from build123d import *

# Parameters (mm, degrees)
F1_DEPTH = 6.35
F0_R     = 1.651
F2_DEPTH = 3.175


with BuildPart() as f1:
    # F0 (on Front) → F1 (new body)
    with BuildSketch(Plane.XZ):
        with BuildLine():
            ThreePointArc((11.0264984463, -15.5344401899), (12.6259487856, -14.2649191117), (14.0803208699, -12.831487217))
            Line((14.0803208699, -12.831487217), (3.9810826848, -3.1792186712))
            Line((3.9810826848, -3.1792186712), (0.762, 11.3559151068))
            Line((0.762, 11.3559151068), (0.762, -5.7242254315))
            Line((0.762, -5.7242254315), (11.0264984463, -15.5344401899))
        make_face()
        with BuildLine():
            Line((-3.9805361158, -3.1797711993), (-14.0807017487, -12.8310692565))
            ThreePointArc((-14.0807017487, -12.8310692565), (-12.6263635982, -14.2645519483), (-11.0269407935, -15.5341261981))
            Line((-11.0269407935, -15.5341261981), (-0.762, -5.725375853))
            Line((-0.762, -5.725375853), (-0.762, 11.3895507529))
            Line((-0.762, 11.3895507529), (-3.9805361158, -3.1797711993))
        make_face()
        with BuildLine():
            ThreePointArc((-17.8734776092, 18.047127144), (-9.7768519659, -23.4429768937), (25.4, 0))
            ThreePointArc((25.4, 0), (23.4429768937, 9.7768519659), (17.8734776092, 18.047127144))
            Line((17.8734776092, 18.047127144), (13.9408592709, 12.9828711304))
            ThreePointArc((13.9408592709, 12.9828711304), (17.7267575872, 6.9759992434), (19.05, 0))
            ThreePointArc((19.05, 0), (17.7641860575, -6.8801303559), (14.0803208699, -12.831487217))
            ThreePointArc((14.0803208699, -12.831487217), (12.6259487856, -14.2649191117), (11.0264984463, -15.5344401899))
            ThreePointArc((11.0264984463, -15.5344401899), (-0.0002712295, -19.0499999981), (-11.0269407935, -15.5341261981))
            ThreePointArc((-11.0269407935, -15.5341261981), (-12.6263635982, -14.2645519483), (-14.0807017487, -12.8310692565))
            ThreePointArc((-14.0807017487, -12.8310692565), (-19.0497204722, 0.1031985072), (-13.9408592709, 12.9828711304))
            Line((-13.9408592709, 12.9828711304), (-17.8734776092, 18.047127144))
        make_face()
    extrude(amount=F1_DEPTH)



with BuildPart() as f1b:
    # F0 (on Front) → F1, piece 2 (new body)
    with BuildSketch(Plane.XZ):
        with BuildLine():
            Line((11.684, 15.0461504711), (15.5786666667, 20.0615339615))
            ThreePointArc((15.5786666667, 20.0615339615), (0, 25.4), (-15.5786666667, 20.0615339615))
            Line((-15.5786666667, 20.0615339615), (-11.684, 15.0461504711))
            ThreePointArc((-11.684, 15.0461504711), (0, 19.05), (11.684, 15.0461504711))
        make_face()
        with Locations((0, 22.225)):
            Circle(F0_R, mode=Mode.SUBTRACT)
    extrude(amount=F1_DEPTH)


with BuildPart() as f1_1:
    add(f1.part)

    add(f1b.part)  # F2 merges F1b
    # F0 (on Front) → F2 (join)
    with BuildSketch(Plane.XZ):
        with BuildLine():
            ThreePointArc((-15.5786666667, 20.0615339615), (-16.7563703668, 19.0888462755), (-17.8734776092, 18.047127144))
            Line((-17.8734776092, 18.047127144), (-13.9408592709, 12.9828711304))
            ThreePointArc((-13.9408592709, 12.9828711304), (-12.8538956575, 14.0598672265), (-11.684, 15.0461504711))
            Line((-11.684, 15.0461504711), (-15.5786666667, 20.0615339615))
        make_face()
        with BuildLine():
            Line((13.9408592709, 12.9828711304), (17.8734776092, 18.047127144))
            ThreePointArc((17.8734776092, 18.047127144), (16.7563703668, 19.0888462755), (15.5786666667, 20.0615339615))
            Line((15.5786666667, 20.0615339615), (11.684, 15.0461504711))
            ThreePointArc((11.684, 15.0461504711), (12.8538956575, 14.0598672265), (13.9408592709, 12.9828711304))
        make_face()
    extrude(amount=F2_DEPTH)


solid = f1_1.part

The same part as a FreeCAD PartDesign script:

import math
import FreeCAD as App
import Part
import Sketcher
from FreeCAD import Vector
Q = App.Units.Quantity

doc = App.newDocument("Part")
body = doc.addObject("PartDesign::Body", "Body")

sketch1 = body.newObject("Sketcher::SketchObject", "Sketch")
sketch1.AttachmentSupport = (doc.getObject("XZ_Plane"), [""])
sketch1.MapMode = "FlatFace"
sketch1.addGeometry(Part.LineSegment(Vector(14, -13, 0), Vector(4, -3, 0)), False)
sketch1.addGeometry(Part.LineSegment(Vector(4, -3, 0), Vector(1, 11, 0)), False)
sketch1.addGeometry(Part.LineSegment(Vector(1, 11, 0), Vector(1, -6, 0)), False)
sketch1.addGeometry(Part.LineSegment(Vector(1, -6, 0), Vector(11, -16, 0)), False)
sketch1.addGeometry(Part.ArcOfCircle(Part.Circle(Vector(0, 0, 0), Vector(0, 0, 1), 19), math.radians(-125), math.radians(-55)), False)
sketch1.addGeometry(Part.LineSegment(Vector(-11, -16, 0), Vector(-1, -6, 0)), False)
sketch1.addGeometry(Part.LineSegment(Vector(-1, -6, 0), Vector(-1, 11, 0)), False)
sketch1.addGeometry(Part.LineSegment(Vector(-1, 11, 0), Vector(-4, -3, 0)), False)
sketch1.addGeometry(Part.LineSegment(Vector(-4, -3, 0), Vector(-14, -13, 0)), False)
sketch1.addGeometry(Part.ArcOfCircle(Part.Circle(Vector(0, 0, 0), Vector(0, 0, 1), 19), math.radians(137), math.radians(222)), False)
sketch1.addGeometry(Part.LineSegment(Vector(-14, 13, 0), Vector(-18, 18, 0)), False)
sketch1.addGeometry(Part.ArcOfCircle(Part.Circle(Vector(0, 0, 0), Vector(0, 0, 1), 25), math.radians(135), math.radians(360)), False)
sketch1.addGeometry(Part.ArcOfCircle(Part.Circle(Vector(0, 0, 0), Vector(0, 0, 1), 25), math.radians(0), math.radians(45)), False)
sketch1.addGeometry(Part.LineSegment(Vector(18, 18, 0), Vector(14, 13, 0)), False)
sketch1.addGeometry(Part.ArcOfCircle(Part.Circle(Vector(0, 0, 0), Vector(0, 0, 1), 19), math.radians(0), math.radians(43)), False)
sketch1.addGeometry(Part.ArcOfCircle(Part.Circle(Vector(0, 0, 0), Vector(0, 0, 1), 19), math.radians(-42), math.radians(0)), False)
sketch1.addConstraint(Sketcher.Constraint("Coincident", 0, 2, 1, 1))
sketch1.addConstraint(Sketcher.Constraint("Coincident", 1, 2, 2, 1))
sketch1.addConstraint(Sketcher.Constraint("Coincident", 2, 2, 3, 1))
sketch1.addConstraint(Sketcher.Constraint("Coincident", 3, 2, 4, 2))
sketch1.addConstraint(Sketcher.Constraint("Coincident", 4, 1, 5, 1))
sketch1.addConstraint(Sketcher.Constraint("Coincident", 5, 2, 6, 1))
sketch1.addConstraint(Sketcher.Constraint("Coincident", 6, 2, 7, 1))
sketch1.addConstraint(Sketcher.Constraint("Coincident", 7, 2, 8, 1))
sketch1.addConstraint(Sketcher.Constraint("Coincident", 8, 2, 9, 2))
sketch1.addConstraint(Sketcher.Constraint("Coincident", 9, 1, 10, 1))
sketch1.addConstraint(Sketcher.Constraint("Coincident", 10, 2, 11, 1))
sketch1.addConstraint(Sketcher.Constraint("Tangent", 11, 2, 12, 1))
sketch1.addConstraint(Sketcher.Constraint("Coincident", 12, 2, 13, 1))
sketch1.addConstraint(Sketcher.Constraint("Coincident", 13, 2, 14, 2))
sketch1.addConstraint(Sketcher.Constraint("Tangent", 14, 1, 15, 2))
sketch1.addConstraint(Sketcher.Constraint("Coincident", 15, 1, 0, 1))
sketch1.addConstraint(Sketcher.Constraint("Vertical", 2))
sketch1.addConstraint(Sketcher.Constraint("Vertical", 6))
sketch1.addConstraint(Sketcher.Constraint("Coincident", 4, 3, -1, 1))
sketch1.addConstraint(Sketcher.Constraint("Coincident", 9, 3, -1, 1))
sketch1.addConstraint(Sketcher.Constraint("Coincident", 11, 3, -1, 1))
sketch1.addConstraint(Sketcher.Constraint("Coincident", 14, 3, -1, 1))
sketch1.addConstraint(Sketcher.Constraint("Equal", 4, 9))
sketch1.addConstraint(Sketcher.Constraint("Equal", 11, 12))
sketch1.addConstraint(Sketcher.Constraint("Equal", 9, 14))
sketch1.addConstraint(Sketcher.Constraint("Equal", 14, 15))
sketch1.addConstraint(Sketcher.Constraint("PointOnObject", 11, 2, -1))
sketch1.addConstraint(Sketcher.Constraint("PointOnObject", 14, 1, -1))
sketch1.addConstraint(Sketcher.Constraint("Parallel", 0, 3))
sketch1.addConstraint(Sketcher.Constraint("Parallel", 5, 8))
sketch1.addConstraint(Sketcher.Constraint("Horizontal", 10, 2, 12, 2))
sketch1.addConstraint(Sketcher.Constraint("Horizontal", 9, 1, 13, 2))
sketch1.addConstraint(Sketcher.Constraint("Equal", 0, 8))
sketch1.addConstraint(Sketcher.Constraint("Radius", 11, Q("1 in")))
sketch1.addConstraint(Sketcher.Constraint("Radius", 4, Q("0.75 in")))
sketch1.addConstraint(Sketcher.Constraint("Distance", 0, Q("0.55 in")))
sketch1.addConstraint(Sketcher.Constraint("DistanceX", -1, 1, 1, 2, Q("0.03 in")))
sketch1.addConstraint(Sketcher.Constraint("DistanceX", 5, 2, -1, 1, Q("0.03 in")))
sketch1.addConstraint(Sketcher.Constraint("Distance", 3, Q("0.559 in")))
sketch1.addConstraint(Sketcher.Constraint("DistanceY", 2, 2, 2, 1, Q("17.080141 mm")))
sketch1.addConstraint(Sketcher.Constraint("DistanceX", -1, 1, 3, 2, Q("11.026498 mm")))
sketch1.addConstraint(Sketcher.Constraint("DistanceX", 8, 2, -1, 1, Q("14.080702 mm")))
sketch1.addConstraint(Sketcher.Constraint("DistanceY", 4, 1, 2, 2, Q("9.809901 mm")))
sketch1.addConstraint(Sketcher.Constraint("DistanceY", 8, 2, 7, 2, Q("9.651298 mm")))
sketch1.addConstraint(Sketcher.Constraint("DistanceY", 7, 2, 10, 2, Q("21.226898 mm")))
sketch1.addConstraint(Sketcher.Constraint("Distance", 1, Q("14.88733 mm")))
sketch1.addConstraint(Sketcher.Constraint("DistanceY", 6, 1, 6, 2, Q("17.114927 mm")))
sketch1.addConstraint(Sketcher.Constraint("DistanceX", 9, 1, -1, 1, Q("13.940859 mm")))
pad1 = body.newObject("PartDesign::Pad", "Pad")
pad1.Profile = sketch1
pad1.Length = Q("0.25 in")
body2 = doc.addObject("PartDesign::Body", "Body001")

sketch2 = body2.newObject("Sketcher::SketchObject", "Sketch001")
sketch2.AttachmentSupport = (doc.getObject("XZ_Plane001"), [""])
sketch2.MapMode = "FlatFace"
sketch2.addGeometry(Part.LineSegment(Vector(11.7, 15, 0), Vector(15.6, 20.1, 0)), False)
sketch2.addGeometry(Part.ArcOfCircle(Part.Circle(Vector(0, 0, 0), Vector(0, 0, 1), 25.4), math.radians(52), math.radians(128)), False)
sketch2.addGeometry(Part.LineSegment(Vector(-15.6, 20.1, 0), Vector(-11.7, 15, 0)), False)
sketch2.addGeometry(Part.ArcOfCircle(Part.Circle(Vector(0, 0, 0), Vector(0, 0, 1), 19.1), math.radians(52), math.radians(128)), False)
sketch2.addGeometry(Part.Circle(Vector(0, 22.2, 0), Vector(0, 0, 1), 1.7), False)
sketch2.addConstraint(Sketcher.Constraint("Coincident", 0, 2, 1, 1))
sketch2.addConstraint(Sketcher.Constraint("Coincident", 1, 2, 2, 1))
sketch2.addConstraint(Sketcher.Constraint("Coincident", 2, 2, 3, 2))
sketch2.addConstraint(Sketcher.Constraint("Coincident", 3, 1, 0, 1))
sketch2.addConstraint(Sketcher.Constraint("Coincident", 1, 3, -1, 1))
sketch2.addConstraint(Sketcher.Constraint("Coincident", 3, 3, -1, 1))
sketch2.addConstraint(Sketcher.Constraint("PointOnObject", 4, 3, -2))
sketch2.addConstraint(Sketcher.Constraint("Horizontal", 0, 2, 1, 2))
sketch2.addConstraint(Sketcher.Constraint("Horizontal", 2, 2, 3, 1))
sketch2.addConstraint(Sketcher.Constraint("Radius", 1, Q("1 in")))
sketch2.addConstraint(Sketcher.Constraint("Diameter", 4, Q("0.13 in")))
sketch2.addConstraint(Sketcher.Constraint("Radius", 3, Q("0.75 in")))
sketch2.addConstraint(Sketcher.Constraint("DistanceX", 2, 2, -1, 1, Q("0.46 in")))
sketch2.addConstraint(Sketcher.Constraint("DistanceY", -1, 1, 4, 3, Q("0.875 in")))
sketch2.addConstraint(Sketcher.Constraint("DistanceX", -1, 1, 0, 2, Q("15.578667 mm")))
pad2 = body2.newObject("PartDesign::Pad", "Pad001")
pad2.Profile = sketch2
pad2.Length = Q("0.25 in")
body.AllowCompound = True
doc.recompute()

boolean = body.newObject("PartDesign::Boolean", "Boolean")
boolean.Type = "Fuse"
boolean.addObjects([body2])

sketch3 = body.newObject("Sketcher::SketchObject", "Sketch002")
sketch3.AttachmentSupport = (doc.getObject("XZ_Plane"), [""])
sketch3.MapMode = "FlatFace"
sketch3.addGeometry(Part.ArcOfCircle(Part.Circle(Vector(0, 0, 0), Vector(0, 0, 1), 25.4), math.radians(127.83), math.radians(134.72)), False)
sketch3.addGeometry(Part.LineSegment(Vector(-17.9, 18, 0), Vector(-13.9, 13, 0)), False)
sketch3.addGeometry(Part.ArcOfCircle(Part.Circle(Vector(0, 0, 0), Vector(0, 0, 1), 19), math.radians(127.83), math.radians(137.04)), False)
sketch3.addGeometry(Part.LineSegment(Vector(-11.7, 15, 0), Vector(-15.6, 20.1, 0)), False)
sketch3.addGeometry(Part.LineSegment(Vector(13.9, 13, 0), Vector(17.9, 18, 0)), False)
sketch3.addGeometry(Part.ArcOfCircle(Part.Circle(Vector(0, 0, 0), Vector(0, 0, 1), 25.4), math.radians(45.28), math.radians(52.17)), False)
sketch3.addGeometry(Part.LineSegment(Vector(15.6, 20.1, 0), Vector(11.7, 15, 0)), False)
sketch3.addGeometry(Part.ArcOfCircle(Part.Circle(Vector(0, 0, 0), Vector(0, 0, 1), 19), math.radians(42.96), math.radians(52.17)), False)
sketch3.addConstraint(Sketcher.Constraint("Coincident", 0, 2, 1, 1))
sketch3.addConstraint(Sketcher.Constraint("Coincident", 1, 2, 2, 2))
sketch3.addConstraint(Sketcher.Constraint("Coincident", 2, 1, 3, 1))
sketch3.addConstraint(Sketcher.Constraint("Coincident", 3, 2, 0, 1))
sketch3.addConstraint(Sketcher.Constraint("Coincident", 4, 2, 5, 1))
sketch3.addConstraint(Sketcher.Constraint("Coincident", 5, 2, 6, 1))
sketch3.addConstraint(Sketcher.Constraint("Coincident", 6, 2, 7, 2))
sketch3.addConstraint(Sketcher.Constraint("Coincident", 7, 1, 4, 1))
sketch3.addConstraint(Sketcher.Constraint("Coincident", 0, 3, -1, 1))
sketch3.addConstraint(Sketcher.Constraint("Coincident", 2, 3, -1, 1))
sketch3.addConstraint(Sketcher.Constraint("Coincident", 5, 3, -1, 1))
sketch3.addConstraint(Sketcher.Constraint("Coincident", 7, 3, -1, 1))
sketch3.addConstraint(Sketcher.Constraint("Equal", 0, 5))
sketch3.addConstraint(Sketcher.Constraint("Equal", 2, 7))
sketch3.addConstraint(Sketcher.Constraint("Parallel", 1, 3))
sketch3.addConstraint(Sketcher.Constraint("Parallel", 4, 6))
sketch3.addConstraint(Sketcher.Constraint("Horizontal", 0, 2, 4, 2))
sketch3.addConstraint(Sketcher.Constraint("Horizontal", 3, 2, 5, 2))
sketch3.addConstraint(Sketcher.Constraint("Horizontal", 2, 1, 6, 2))
sketch3.addConstraint(Sketcher.Constraint("Radius", 0, Q("1 in")))
sketch3.addConstraint(Sketcher.Constraint("Radius", 2, Q("0.75 in")))
sketch3.addConstraint(Sketcher.Constraint("DistanceX", 2, 1, -1, 1, Q("0.46 in")))
sketch3.addConstraint(Sketcher.Constraint("DistanceX", 1, 2, -1, 1, Q("13.940859 mm")))
sketch3.addConstraint(Sketcher.Constraint("DistanceX", 0, 2, 1, 2, Q("3.932618 mm")))
pad3 = body.newObject("PartDesign::Pad", "Pad002")
pad3.Profile = sketch3
pad3.Length = Q("0.125 in")

doc.recompute()
